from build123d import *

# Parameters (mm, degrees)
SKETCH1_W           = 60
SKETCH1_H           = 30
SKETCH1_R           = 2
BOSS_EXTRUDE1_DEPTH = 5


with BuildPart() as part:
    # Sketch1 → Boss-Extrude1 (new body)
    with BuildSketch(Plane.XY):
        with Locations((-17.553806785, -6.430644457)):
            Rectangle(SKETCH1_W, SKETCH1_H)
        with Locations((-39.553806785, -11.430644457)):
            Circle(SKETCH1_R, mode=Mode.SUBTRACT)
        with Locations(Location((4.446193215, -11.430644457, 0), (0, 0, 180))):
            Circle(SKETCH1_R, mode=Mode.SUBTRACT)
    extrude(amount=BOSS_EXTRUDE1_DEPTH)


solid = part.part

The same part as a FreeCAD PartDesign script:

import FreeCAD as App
import Part
import Sketcher
from FreeCAD import Vector
Q = App.Units.Quantity

doc = App.newDocument("Part")
body = doc.addObject("PartDesign::Body", "Body")

# Sketch on XY plane
sketch1 = body.newObject("Sketcher::SketchObject", "Sketch")
sketch1.AttachmentSupport = (doc.getObject("XY_Plane"), [""])
sketch1.MapMode = "FlatFace"
sketch1.addGeometry(Part.LineSegment(Vector(-47.6, 8.6, 0), Vector(-47.6, -21.4, 0)), False)
sketch1.addGeometry(Part.LineSegment(Vector(-47.6, -21.4, 0), Vector(12.4, -21.4, 0)), False)
sketch1.addGeometry(Part.LineSegment(Vector(12.4, -21.4, 0), Vector(12.4, 8.6, 0)), False)
sketch1.addGeometry(Part.LineSegment(Vector(12.4, 8.6, 0), Vector(-47.6, 8.6, 0)), False)
sketch1.addGeometry(Part.Circle(Vector(-39.6, -11.4, 0), Vector(0, 0, 1), 2), False)
sketch1.addGeometry(Part.Circle(Vector(4.4, -11.4, 0), Vector(0, 0, 1), 2), False)
sketch1.addConstraint(Sketcher.Constraint("Coincident", 0, 2, 1, 1))
sketch1.addConstraint(Sketcher.Constraint("Coincident", 1, 2, 2, 1))
sketch1.addConstraint(Sketcher.Constraint("Coincident", 2, 2, 3, 1))
sketch1.addConstraint(Sketcher.Constraint("Coincident", 3, 2, 0, 1))
sketch1.addConstraint(Sketcher.Constraint("Vertical", 0))
sketch1.addConstraint(Sketcher.Constraint("Horizontal", 1))
sketch1.addConstraint(Sketcher.Constraint("Vertical", 2))
sketch1.addConstraint(Sketcher.Constraint("Horizontal", 3))
sketch1.addConstraint(Sketcher.Constraint("Equal", 4, 5))
sketch1.addConstraint(Sketcher.Constraint("Horizontal", 4, 3, 5, 3))
sketch1.addConstraint(Sketcher.Constraint("Diameter", 4, Q("4 mm")))
sketch1.addConstraint(Sketcher.Constraint("DistanceX", 1, 1, 1, 2, Q("60 mm")))
sketch1.addConstraint(Sketcher.Constraint("DistanceY", 0, 2, 0, 1, Q("30 mm")))
sketch1.addConstraint(Sketcher.Constraint("DistanceX", 4, 3, 5, 3, Q("44 mm")))
sketch1.addConstraint(Sketcher.Constraint("DistanceX", 0, 2, 4, 3, Q("8 mm")))
sketch1.addConstraint(Sketcher.Constraint("DistanceY", 0, 2, 4, 3, Q("10 mm")))
sketch1.addConstraint(Sketcher.Constraint("DistanceX", 4, 3, -1, 1, Q("39.553807 mm")))
sketch1.addConstraint(Sketcher.Constraint("DistanceY", 4, 3, -1, 1, Q("11.430644 mm")))
pad1 = body.newObject("PartDesign::Pad", "Pad")
pad1.Profile = sketch1
pad1.Length = 5

doc.recompute()
